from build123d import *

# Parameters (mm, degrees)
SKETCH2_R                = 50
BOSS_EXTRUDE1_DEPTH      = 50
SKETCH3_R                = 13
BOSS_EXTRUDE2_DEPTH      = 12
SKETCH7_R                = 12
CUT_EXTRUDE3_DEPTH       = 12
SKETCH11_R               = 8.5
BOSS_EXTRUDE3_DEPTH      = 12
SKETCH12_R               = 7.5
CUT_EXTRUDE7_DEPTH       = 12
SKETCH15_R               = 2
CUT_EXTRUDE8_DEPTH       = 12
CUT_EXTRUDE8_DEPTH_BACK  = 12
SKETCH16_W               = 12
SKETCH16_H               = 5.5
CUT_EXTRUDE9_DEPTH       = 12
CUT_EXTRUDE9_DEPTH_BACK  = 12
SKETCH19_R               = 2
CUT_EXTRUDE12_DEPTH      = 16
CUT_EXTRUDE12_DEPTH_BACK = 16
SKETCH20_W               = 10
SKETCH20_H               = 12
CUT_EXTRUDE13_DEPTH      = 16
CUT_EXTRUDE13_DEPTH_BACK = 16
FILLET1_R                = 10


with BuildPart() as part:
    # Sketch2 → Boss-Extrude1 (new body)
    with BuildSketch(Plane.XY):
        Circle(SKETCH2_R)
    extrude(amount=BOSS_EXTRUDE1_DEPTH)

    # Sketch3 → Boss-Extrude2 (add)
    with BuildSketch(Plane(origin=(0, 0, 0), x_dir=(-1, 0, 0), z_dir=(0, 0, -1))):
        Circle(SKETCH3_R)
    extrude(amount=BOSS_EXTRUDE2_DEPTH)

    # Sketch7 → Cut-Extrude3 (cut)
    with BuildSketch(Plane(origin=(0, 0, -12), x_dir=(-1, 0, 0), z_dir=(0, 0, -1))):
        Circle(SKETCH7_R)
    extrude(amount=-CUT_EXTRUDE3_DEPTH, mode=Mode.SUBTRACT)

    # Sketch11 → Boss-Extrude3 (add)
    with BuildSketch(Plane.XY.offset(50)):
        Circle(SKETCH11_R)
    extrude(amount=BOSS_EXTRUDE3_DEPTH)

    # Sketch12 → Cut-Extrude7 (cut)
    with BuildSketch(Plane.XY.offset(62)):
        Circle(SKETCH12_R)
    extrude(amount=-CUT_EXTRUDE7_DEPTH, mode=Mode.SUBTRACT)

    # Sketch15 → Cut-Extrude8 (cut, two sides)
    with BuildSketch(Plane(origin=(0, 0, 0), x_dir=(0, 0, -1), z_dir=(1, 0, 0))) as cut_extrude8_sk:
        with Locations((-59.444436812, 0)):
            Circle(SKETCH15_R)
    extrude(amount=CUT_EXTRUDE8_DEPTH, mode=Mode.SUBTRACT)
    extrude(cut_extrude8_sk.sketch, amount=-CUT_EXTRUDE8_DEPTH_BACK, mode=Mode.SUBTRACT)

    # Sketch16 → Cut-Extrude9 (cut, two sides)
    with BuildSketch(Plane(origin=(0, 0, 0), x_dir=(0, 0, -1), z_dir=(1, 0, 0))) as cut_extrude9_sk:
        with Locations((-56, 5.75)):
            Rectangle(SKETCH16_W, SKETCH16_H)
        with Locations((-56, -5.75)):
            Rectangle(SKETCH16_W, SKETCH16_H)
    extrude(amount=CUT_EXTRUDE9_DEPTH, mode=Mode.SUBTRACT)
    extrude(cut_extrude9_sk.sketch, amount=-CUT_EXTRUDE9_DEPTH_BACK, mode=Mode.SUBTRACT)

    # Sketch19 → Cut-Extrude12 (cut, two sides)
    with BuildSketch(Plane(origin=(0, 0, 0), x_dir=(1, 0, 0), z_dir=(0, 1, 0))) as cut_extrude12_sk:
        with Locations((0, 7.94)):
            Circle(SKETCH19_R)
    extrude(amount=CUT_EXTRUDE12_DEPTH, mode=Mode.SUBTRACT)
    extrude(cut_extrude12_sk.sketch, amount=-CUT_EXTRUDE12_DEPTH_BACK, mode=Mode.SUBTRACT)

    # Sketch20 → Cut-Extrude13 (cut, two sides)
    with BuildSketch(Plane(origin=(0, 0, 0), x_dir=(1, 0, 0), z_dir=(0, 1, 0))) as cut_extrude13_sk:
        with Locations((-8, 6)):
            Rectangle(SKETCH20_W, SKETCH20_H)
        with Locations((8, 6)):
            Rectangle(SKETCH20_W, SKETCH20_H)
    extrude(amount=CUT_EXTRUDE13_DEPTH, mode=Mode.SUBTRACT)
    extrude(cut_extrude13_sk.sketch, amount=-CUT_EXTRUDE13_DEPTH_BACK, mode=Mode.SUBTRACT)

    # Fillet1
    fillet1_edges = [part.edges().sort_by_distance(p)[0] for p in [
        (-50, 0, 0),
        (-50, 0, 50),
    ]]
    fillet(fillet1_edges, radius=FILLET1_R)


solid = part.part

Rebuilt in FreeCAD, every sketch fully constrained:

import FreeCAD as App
import Part
import Sketcher
from FreeCAD import Vector
Q = App.Units.Quantity


def edges_at(feature, points):
    """Names of the edges that pass closest to the given points."""
    edges = feature.Shape.Edges
    near = lambda p: min(range(len(edges)), key=lambda i: edges[i].distToShape(Part.Vertex(*p))[0])
    return sorted({f"Edge{near(p) + 1}" for p in points})

doc = App.newDocument("Part")
body = doc.addObject("PartDesign::Body", "Body")

sketch1 = body.newObject("Sketcher::SketchObject", "Sketch")
sketch1.AttachmentSupport = (doc.getObject("XY_Plane"), [""])
sketch1.MapMode = "FlatFace"
sketch1.addGeometry(Part.Circle(Vector(0, 0, 0), Vector(0, 0, 1), 50), False)
sketch1.addConstraint(Sketcher.Constraint("Coincident", 0, 3, -1, 1))
sketch1.addConstraint(Sketcher.Constraint("Diameter", 0, Q("100 mm")))
pad1 = body.newObject("PartDesign::Pad", "Pad")
pad1.Profile = sketch1
pad1.Length = 50

sketch2 = body.newObject("Sketcher::SketchObject", "Sketch001")
sketch2.AttachmentSupport = (doc.getObject("XY_Plane"), [""])
sketch2.MapMode = "FlatFace"
sketch2.addGeometry(Part.Circle(Vector(0, 0, 0), Vector(0, 0, 1), 13), False)
sketch2.addConstraint(Sketcher.Constraint("Coincident", 0, 3, -1, 1))
sketch2.addConstraint(Sketcher.Constraint("Diameter", 0, Q("26 mm")))
pad2 = body.newObject("PartDesign::Pad", "Pad001")
pad2.Profile = sketch2
pad2.Length = 12
pad2.Reversed = True

sketch3 = body.newObject("Sketcher::SketchObject", "Sketch002")
sketch3.AttachmentSupport = (doc.getObject("XY_Plane"), [""])
sketch3.MapMode = "FlatFace"
sketch3.AttachmentOffset = App.Placement(Vector(0, 0, -12), App.Rotation())
sketch3.addGeometry(Part.Circle(Vector(0, 0, 0), Vector(0, 0, 1), 12), False)
sketch3.addConstraint(Sketcher.Constraint("Coincident", 0, 3, -1, 1))
sketch3.addConstraint(Sketcher.Constraint("Diameter", 0, Q("24 mm")))
pocket1 = body.newObject("PartDesign::Pocket", "Pocket")
pocket1.Profile = sketch3
pocket1.Length = 12
pocket1.Reversed = True

sketch4 = body.newObject("Sketcher::SketchObject", "Sketch003")
sketch4.AttachmentSupport = (doc.getObject("XY_Plane"), [""])
sketch4.MapMode = "FlatFace"
sketch4.AttachmentOffset = App.Placement(Vector(0, 0, 50), App.Rotation())
sketch4.addGeometry(Part.Circle(Vector(0, 0, 0), Vector(0, 0, 1), 8.5), False)
sketch4.addConstraint(Sketcher.Constraint("Coincident", 0, 3, -1, 1))
sketch4.addConstraint(Sketcher.Constraint("Diameter", 0, Q("17 mm")))
pad3 = body.newObject("PartDesign::Pad", "Pad002")
pad3.Profile = sketch4
pad3.Length = 12

sketch5 = body.newObject("Sketcher::SketchObject", "Sketch004")
sketch5.AttachmentSupport = (doc.getObject("XY_Plane"), [""])
sketch5.MapMode = "FlatFace"
sketch5.AttachmentOffset = App.Placement(Vector(0, 0, 62), App.Rotation())
sketch5.addGeometry(Part.Circle(Vector(0, 0, 0), Vector(0, 0, 1), 7.5), False)
sketch5.addConstraint(Sketcher.Constraint("Coincident", 0, 3, -1, 1))
sketch5.addConstraint(Sketcher.Constraint("Diameter", 0, Q("15 mm")))
pocket2 = body.newObject("PartDesign::Pocket", "Pocket001")
pocket2.Profile = sketch5
pocket2.Length = 12

sketch6 = body.newObject("Sketcher::SketchObject", "Sketch005")
sketch6.AttachmentSupport = (doc.getObject("YZ_Plane"), [""])
sketch6.MapMode = "FlatFace"
sketch6.addGeometry(Part.Circle(Vector(0, 59.444437, 0), Vector(0, 0, 1), 2), False)
sketch6.addConstraint(Sketcher.Constraint("PointOnObject", 0, 3, -2))
sketch6.addConstraint(Sketcher.Constraint("Diameter", 0, Q("4 mm")))
sketch6.addConstraint(Sketcher.Constraint("DistanceY", -1, 1, 0, 3, Q("59.444437 mm")))
pocket3 = body.newObject("PartDesign::Pocket", "Pocket002")
pocket3.Profile = sketch6
pocket3.Type = "ThroughAll"
pocket3.Midplane = True

sketch7 = body.newObject("Sketcher::SketchObject", "Sketch006")
sketch7.AttachmentSupport = (doc.getObject("YZ_Plane"), [""])
sketch7.MapMode = "FlatFace"
sketch7.addGeometry(Part.LineSegment(Vector(8.5, 62, 0), Vector(3, 62, 0)), False)
sketch7.addGeometry(Part.LineSegment(Vector(3, 62, 0), Vector(3, 50, 0)), False)
sketch7.addGeometry(Part.LineSegment(Vector(3, 50, 0), Vector(8.5, 50, 0)), False)
sketch7.addGeometry(Part.LineSegment(Vector(8.5, 50, 0), Vector(8.5, 62, 0)), False)
sketch7.addGeometry(Part.LineSegment(Vector(-3, 62, 0), Vector(-8.5, 62, 0)), False)
sketch7.addGeometry(Part.LineSegment(Vector(-8.5, 62, 0), Vector(-8.5, 50, 0)), False)
sketch7.addGeometry(Part.LineSegment(Vector(-8.5, 50, 0), Vector(-3, 50, 0)), False)
sketch7.addGeometry(Part.LineSegment(Vector(-3, 50, 0), Vector(-3, 62, 0)), False)
sketch7.addConstraint(Sketcher.Constraint("Coincident", 0, 2, 1, 1))
sketch7.addConstraint(Sketcher.Constraint("Coincident", 1, 2, 2, 1))
sketch7.addConstraint(Sketcher.Constraint("Coincident", 2, 2, 3, 1))
sketch7.addConstraint(Sketcher.Constraint("Coincident", 3, 2, 0, 1))
sketch7.addConstraint(Sketcher.Constraint("Coincident", 4, 2, 5, 1))
sketch7.addConstraint(Sketcher.Constraint("Coincident", 5, 2, 6, 1))
sketch7.addConstraint(Sketcher.Constraint("Coincident", 6, 2, 7, 1))
sketch7.addConstraint(Sketcher.Constraint("Coincident", 7, 2, 4, 1))
sketch7.addConstraint(Sketcher.Constraint("Horizontal", 0))
sketch7.addConstraint(Sketcher.Constraint("Vertical", 1))
sketch7.addConstraint(Sketcher.Constraint("Horizontal", 2))
sketch7.addConstraint(Sketcher.Constraint("Vertical", 3))
sketch7.addConstraint(Sketcher.Constraint("Horizontal", 4))
sketch7.addConstraint(Sketcher.Constraint("Vertical", 5))
sketch7.addConstraint(Sketcher.Constraint("Horizontal", 6))
sketch7.addConstraint(Sketcher.Constraint("Vertical", 7))
sketch7.addConstraint(Sketcher.Constraint("Symmetric", 3, 2, 4, 2, -2))
sketch7.addConstraint(Sketcher.Constraint("Symmetric", 1, 2, 6, 2, -2))
sketch7.addConstraint(Sketcher.Constraint("DistanceY", 1, 2, 1, 1, Q("12 mm")))
sketch7.addConstraint(Sketcher.Constraint("DistanceX", 0, 2, 0, 1, Q("5.5 mm")))
sketch7.addConstraint(Sketcher.Constraint("DistanceX", -1, 1, 0, 2, Q("3 mm")))
sketch7.addConstraint(Sketcher.Constraint("DistanceY", -1, 1, 0, 2, Q("62 mm")))
pocket4 = body.newObject("PartDesign::Pocket", "Pocket003")
pocket4.Profile = sketch7
pocket4.Type = "ThroughAll"
pocket4.Midplane = True

sketch8 = body.newObject("Sketcher::SketchObject", "Sketch007")
sketch8.AttachmentSupport = (doc.getObject("XZ_Plane"), [""])
sketch8.MapMode = "FlatFace"
sketch8.addGeometry(Part.Circle(Vector(0, -7.94, 0), Vector(0, 0, 1), 2), False)
sketch8.addConstraint(Sketcher.Constraint("PointOnObject", 0, 3, -2))
sketch8.addConstraint(Sketcher.Constraint("Diameter", 0, Q("4 mm")))
sketch8.addConstraint(Sketcher.Constraint("DistanceY", 0, 3, -1, 1, Q("7.94 mm")))
pocket5 = body.newObject("PartDesign::Pocket", "Pocket004")
pocket5.Profile = sketch8
pocket5.Type = "ThroughAll"
pocket5.Midplane = True

sketch9 = body.newObject("Sketcher::SketchObject", "Sketch008")
sketch9.AttachmentSupport = (doc.getObject("XZ_Plane"), [""])
sketch9.MapMode = "FlatFace"
sketch9.addGeometry(Part.LineSegment(Vector(-13, -12, 0), Vector(-13, 0, 0)), False)
sketch9.addGeometry(Part.LineSegment(Vector(-13, 0, 0), Vector(-3, 0, 0)), False)
sketch9.addGeometry(Part.LineSegment(Vector(-3, 0, 0), Vector(-3, -12, 0)), False)
sketch9.addGeometry(Part.LineSegment(Vector(-3, -12, 0), Vector(-13, -12, 0)), False)
sketch9.addGeometry(Part.LineSegment(Vector(3, -12, 0), Vector(3, 0, 0)), False)
sketch9.addGeometry(Part.LineSegment(Vector(3, 0, 0), Vector(13, 0, 0)), False)
sketch9.addGeometry(Part.LineSegment(Vector(13, 0, 0), Vector(13, -12, 0)), False)
sketch9.addGeometry(Part.LineSegment(Vector(13, -12, 0), Vector(3, -12, 0)), False)
sketch9.addConstraint(Sketcher.Constraint("Coincident", 0, 2, 1, 1))
sketch9.addConstraint(Sketcher.Constraint("Coincident", 1, 2, 2, 1))
sketch9.addConstraint(Sketcher.Constraint("Coincident", 2, 2, 3, 1))
sketch9.addConstraint(Sketcher.Constraint("Coincident", 3, 2, 0, 1))
sketch9.addConstraint(Sketcher.Constraint("Coincident", 4, 2, 5, 1))
sketch9.addConstraint(Sketcher.Constraint("Coincident", 5, 2, 6, 1))
sketch9.addConstraint(Sketcher.Constraint("Coincident", 6, 2, 7, 1))
sketch9.addConstraint(Sketcher.Constraint("Coincident", 7, 2, 4, 1))
sketch9.addConstraint(Sketcher.Constraint("Vertical", 0))
sketch9.addConstraint(Sketcher.Constraint("Horizontal", 1))
sketch9.addConstraint(Sketcher.Constraint("Vertical", 2))
sketch9.addConstraint(Sketcher.Constraint("Horizontal", 3))
sketch9.addConstraint(Sketcher.Constraint("Vertical", 4))
sketch9.addConstraint(Sketcher.Constraint("Horizontal", 5))
sketch9.addConstraint(Sketcher.Constraint("Vertical", 6))
sketch9.addConstraint(Sketcher.Constraint("Horizontal", 7))
sketch9.addConstraint(Sketcher.Constraint("Symmetric", 1, 2, 4, 2, -1, 1))
sketch9.addConstraint(Sketcher.Constraint("Symmetric", 0, 2, 5, 2, -2))
sketch9.addConstraint(Sketcher.Constraint("Horizontal", 3, 2, 6, 2))
sketch9.addConstraint(Sketcher.Constraint("DistanceX", 1, 1, 1, 2, Q("10 mm")))
sketch9.addConstraint(Sketcher.Constraint("DistanceY", 0, 1, 0, 2, Q("12 mm")))
sketch9.addConstraint(Sketcher.Constraint("DistanceX", 0, 2, -1, 1, Q("13 mm")))
pocket6 = body.newObject("PartDesign::Pocket", "Pocket005")
pocket6.Profile = sketch9
pocket6.Type = "ThroughAll"
pocket6.Midplane = True
doc.recompute()

fillet = body.newObject("PartDesign::Fillet", "Fillet")
fillet.Base = (pocket6, edges_at(pocket6, [(-50, 0, 0), (-50, 0, 50)]))
fillet.Radius = 10

doc.recompute()
